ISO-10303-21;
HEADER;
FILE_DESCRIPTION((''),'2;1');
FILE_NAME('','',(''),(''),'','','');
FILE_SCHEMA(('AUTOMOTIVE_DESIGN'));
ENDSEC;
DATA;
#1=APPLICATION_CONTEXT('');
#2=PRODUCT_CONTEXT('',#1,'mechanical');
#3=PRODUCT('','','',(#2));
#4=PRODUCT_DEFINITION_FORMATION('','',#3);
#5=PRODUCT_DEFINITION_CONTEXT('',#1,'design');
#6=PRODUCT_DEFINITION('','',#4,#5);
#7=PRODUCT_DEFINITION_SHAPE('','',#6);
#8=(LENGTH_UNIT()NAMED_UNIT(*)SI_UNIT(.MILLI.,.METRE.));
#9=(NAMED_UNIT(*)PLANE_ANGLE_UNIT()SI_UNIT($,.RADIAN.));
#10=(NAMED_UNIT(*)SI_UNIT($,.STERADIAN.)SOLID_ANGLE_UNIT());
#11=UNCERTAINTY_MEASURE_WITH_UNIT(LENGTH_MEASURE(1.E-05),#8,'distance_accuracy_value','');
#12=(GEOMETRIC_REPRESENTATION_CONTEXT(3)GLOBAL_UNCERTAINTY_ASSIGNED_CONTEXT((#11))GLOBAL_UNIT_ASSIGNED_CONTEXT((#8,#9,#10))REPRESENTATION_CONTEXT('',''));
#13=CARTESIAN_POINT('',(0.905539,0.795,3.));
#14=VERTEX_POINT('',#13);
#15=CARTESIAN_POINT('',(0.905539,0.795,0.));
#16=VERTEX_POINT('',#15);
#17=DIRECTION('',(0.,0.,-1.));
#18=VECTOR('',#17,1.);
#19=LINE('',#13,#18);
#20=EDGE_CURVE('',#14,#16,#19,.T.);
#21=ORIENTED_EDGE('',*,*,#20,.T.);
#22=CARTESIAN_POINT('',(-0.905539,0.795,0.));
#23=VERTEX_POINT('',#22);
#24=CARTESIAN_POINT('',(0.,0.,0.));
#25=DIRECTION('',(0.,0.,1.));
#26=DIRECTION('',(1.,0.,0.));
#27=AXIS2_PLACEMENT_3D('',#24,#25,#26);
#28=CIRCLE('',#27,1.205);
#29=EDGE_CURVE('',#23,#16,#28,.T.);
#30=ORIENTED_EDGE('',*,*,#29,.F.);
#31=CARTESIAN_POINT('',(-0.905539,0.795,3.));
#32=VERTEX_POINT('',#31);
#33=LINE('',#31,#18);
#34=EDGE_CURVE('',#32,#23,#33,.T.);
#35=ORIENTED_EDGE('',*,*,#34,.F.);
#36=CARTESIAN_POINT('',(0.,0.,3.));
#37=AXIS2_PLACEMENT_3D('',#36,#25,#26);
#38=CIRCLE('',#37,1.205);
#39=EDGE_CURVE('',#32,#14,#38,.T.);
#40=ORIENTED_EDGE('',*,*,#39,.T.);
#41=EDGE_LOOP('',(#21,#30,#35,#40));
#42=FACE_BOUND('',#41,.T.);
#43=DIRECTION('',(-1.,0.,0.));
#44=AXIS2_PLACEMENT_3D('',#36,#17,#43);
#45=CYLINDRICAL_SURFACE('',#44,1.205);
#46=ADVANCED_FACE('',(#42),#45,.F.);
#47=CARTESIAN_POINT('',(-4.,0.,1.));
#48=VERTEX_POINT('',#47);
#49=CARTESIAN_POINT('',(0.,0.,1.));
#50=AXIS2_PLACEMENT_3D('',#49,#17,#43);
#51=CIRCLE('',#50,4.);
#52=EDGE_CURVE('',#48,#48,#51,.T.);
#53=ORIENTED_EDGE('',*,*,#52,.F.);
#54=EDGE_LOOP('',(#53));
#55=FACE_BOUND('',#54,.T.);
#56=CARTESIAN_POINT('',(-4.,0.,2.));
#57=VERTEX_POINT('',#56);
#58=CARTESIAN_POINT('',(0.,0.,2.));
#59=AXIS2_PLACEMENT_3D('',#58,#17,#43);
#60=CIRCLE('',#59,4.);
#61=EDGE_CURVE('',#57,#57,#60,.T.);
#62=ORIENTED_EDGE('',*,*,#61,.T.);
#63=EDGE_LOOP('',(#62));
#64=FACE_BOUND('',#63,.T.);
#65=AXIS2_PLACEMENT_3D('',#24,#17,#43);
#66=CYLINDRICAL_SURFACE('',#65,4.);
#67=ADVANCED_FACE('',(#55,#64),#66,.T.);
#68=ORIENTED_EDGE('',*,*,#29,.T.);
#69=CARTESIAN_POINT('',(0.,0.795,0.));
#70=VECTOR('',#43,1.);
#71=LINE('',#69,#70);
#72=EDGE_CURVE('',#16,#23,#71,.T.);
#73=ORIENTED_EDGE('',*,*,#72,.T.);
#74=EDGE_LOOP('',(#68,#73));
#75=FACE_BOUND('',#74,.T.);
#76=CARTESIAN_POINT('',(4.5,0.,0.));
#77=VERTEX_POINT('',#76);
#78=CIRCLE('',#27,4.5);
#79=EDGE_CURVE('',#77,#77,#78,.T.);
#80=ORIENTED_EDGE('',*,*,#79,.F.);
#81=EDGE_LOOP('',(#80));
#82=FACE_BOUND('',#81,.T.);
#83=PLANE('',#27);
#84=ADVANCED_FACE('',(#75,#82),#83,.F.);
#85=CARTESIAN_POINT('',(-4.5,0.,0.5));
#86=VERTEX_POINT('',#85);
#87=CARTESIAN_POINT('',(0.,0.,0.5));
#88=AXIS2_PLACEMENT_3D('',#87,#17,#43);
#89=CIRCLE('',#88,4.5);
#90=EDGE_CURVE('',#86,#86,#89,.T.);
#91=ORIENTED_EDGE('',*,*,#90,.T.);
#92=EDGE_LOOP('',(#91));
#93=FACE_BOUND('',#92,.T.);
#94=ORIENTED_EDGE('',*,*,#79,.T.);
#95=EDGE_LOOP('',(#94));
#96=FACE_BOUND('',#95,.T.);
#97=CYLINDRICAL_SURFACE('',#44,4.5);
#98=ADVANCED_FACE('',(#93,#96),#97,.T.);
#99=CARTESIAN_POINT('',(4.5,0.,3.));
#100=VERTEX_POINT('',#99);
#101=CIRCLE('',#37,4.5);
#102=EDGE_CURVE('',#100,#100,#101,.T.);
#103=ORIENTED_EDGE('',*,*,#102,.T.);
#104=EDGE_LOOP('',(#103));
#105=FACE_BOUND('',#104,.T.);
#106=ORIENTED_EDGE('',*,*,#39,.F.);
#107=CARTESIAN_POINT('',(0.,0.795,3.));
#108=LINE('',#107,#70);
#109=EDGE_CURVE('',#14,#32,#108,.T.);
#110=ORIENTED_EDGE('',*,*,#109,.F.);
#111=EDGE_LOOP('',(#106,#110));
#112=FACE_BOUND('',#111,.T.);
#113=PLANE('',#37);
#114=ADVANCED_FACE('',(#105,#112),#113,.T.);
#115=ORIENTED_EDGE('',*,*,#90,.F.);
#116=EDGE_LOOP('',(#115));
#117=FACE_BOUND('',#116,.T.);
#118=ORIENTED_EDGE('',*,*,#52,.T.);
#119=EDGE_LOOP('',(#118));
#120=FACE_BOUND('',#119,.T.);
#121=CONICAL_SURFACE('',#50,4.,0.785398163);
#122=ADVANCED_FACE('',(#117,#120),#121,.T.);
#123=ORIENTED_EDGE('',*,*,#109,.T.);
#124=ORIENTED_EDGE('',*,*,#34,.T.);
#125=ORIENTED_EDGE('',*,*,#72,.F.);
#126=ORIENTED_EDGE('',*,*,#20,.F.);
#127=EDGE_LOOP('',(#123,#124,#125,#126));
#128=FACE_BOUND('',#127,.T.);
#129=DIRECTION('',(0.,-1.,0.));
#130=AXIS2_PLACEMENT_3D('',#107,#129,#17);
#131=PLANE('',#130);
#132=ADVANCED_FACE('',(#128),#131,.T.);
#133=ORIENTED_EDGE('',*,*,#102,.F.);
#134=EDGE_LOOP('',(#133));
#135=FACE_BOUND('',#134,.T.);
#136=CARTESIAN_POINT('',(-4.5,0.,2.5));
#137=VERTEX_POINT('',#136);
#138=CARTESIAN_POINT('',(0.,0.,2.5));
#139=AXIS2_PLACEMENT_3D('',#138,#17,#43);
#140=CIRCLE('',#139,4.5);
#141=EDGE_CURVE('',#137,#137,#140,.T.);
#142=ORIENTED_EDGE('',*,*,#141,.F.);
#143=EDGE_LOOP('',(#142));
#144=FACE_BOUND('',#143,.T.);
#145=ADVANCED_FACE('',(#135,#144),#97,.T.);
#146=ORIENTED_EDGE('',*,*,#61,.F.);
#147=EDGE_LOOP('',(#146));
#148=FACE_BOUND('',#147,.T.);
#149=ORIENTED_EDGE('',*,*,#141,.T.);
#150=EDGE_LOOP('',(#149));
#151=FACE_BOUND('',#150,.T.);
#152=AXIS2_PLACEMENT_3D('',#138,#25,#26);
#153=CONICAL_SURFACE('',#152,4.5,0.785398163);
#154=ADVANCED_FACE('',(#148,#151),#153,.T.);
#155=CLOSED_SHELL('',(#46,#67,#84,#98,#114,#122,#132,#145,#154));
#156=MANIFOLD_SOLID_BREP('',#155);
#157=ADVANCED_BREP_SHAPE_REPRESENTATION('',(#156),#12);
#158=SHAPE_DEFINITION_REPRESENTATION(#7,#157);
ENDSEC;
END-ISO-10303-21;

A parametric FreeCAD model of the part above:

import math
import FreeCAD as App
import Part
import Sketcher

doc = App.newDocument("Part")
params = doc.addObject("Spreadsheet::Sheet", "Params")
for row, (alias, value) in enumerate([
    ("sketch1_diameter", "9 mm"),
    ("pad1_length", "3 mm"),
    ("sketch2_height", "2 mm"),
    ("sketch2_height2", "1 mm"),
    ("groove_angle", "360 deg"),
], start=1):
    params.set(f"A{row}", alias)
    params.set(f"B{row}", "=" + value)
    params.setAlias(f"B{row}", alias)

body = doc.addObject("PartDesign::Body", "Body")

# Sketch on XY plane
sketch1 = body.newObject("Sketcher::SketchObject", "Sketch")
sketch1.AttachmentSupport = (doc.getObject("XY_Plane"), [""])
sketch1.MapMode = "FlatFace"
sketch1.addGeometry(Part.Circle(App.Vector(0, 0, 0), App.Vector(0, 0, 1), 4.5), False)
sketch1.addConstraint(Sketcher.Constraint("Coincident", 0, 3, -1, 1))
sketch1.addConstraint(Sketcher.Constraint("Diameter", 0, 9.0))
sketch1.setExpression("Constraints[1]", "Params.sketch1_diameter")
pad1 = body.newObject("PartDesign::Pad", "Pad")
pad1.Profile = sketch1
pad1.setExpression("Length", "Params.pad1_length")

# Sketch on YZ plane
sketch2 = body.newObject("Sketcher::SketchObject", "Sketch001")
sketch2.AttachmentSupport = (doc.getObject("YZ_Plane"), [""])
sketch2.MapMode = "FlatFace"
sketch2.addGeometry(Part.LineSegment(App.Vector(4.5, 0.5, 0), App.Vector(4.5, 2.5, 0)), False)
sketch2.addGeometry(Part.LineSegment(App.Vector(4.5, 2.5, 0), App.Vector(4, 2, 0)), False)
sketch2.addGeometry(Part.LineSegment(App.Vector(4, 2, 0), App.Vector(4, 1, 0)), False)
sketch2.addGeometry(Part.LineSegment(App.Vector(4, 1, 0), App.Vector(4.5, 0.5, 0)), False)
sketch2.addConstraint(Sketcher.Constraint("Coincident", 0, 2, 1, 1))
sketch2.addConstraint(Sketcher.Constraint("Coincident", 1, 2, 2, 1))
sketch2.addConstraint(Sketcher.Constraint("Coincident", 2, 2, 3, 1))
sketch2.addConstraint(Sketcher.Constraint("Coincident", 3, 2, 0, 1))
sketch2.addConstraint(Sketcher.Constraint("Vertical", 0))
sketch2.addConstraint(Sketcher.Constraint("Vertical", 2))
sketch2.addConstraint(Sketcher.Constraint("Perpendicular", 1, 3))
sketch2.addConstraint(Sketcher.Constraint("Equal", 1, 3))
sketch2.addConstraint(Sketcher.Constraint("DistanceY", 0, 1, 0, 2, 2.0))
sketch2.addConstraint(Sketcher.Constraint("DistanceY", 2, 2, 2, 1, 1.0))
sketch2.addConstraint(Sketcher.Constraint("DistanceX", -1, 1, 1, 2, 4.0))
sketch2.addConstraint(Sketcher.Constraint("DistanceY", -1, 1, 1, 2, 2.0))
sketch2.setExpression("Constraints[8]", "Params.sketch2_height")
sketch2.setExpression("Constraints[9]", "Params.sketch2_height2")
groove = body.newObject("PartDesign::Groove", "Groove")
groove.Profile = sketch2
groove.ReferenceAxis = (sketch2, ["V_Axis"])
groove.setExpression("Angle", "Params.groove_angle")

# Sketch on XY plane
sketch3 = body.newObject("Sketcher::SketchObject", "Sketch002")
sketch3.AttachmentSupport = (doc.getObject("XY_Plane"), [""])
sketch3.MapMode = "FlatFace"
sketch3.addGeometry(Part.ArcOfCircle(Part.Circle(App.Vector(0, 0, 0), App.Vector(0, 0, 1), 1.205), math.radians(0), math.radians(41.280888)), False)
sketch3.addGeometry(Part.LineSegment(App.Vector(0.905539, 0.795, 0), App.Vector(-0.905539, 0.795, 0)), False)
sketch3.addGeometry(Part.ArcOfCircle(Part.Circle(App.Vector(0, 0, 0), App.Vector(0, 0, 1), 1.205), math.radians(138.719112), math.radians(360)), False)
sketch3.addConstraint(Sketcher.Constraint("Coincident", 0, 2, 1, 1))
sketch3.addConstraint(Sketcher.Constraint("Coincident", 1, 2, 2, 1))
sketch3.addConstraint(Sketcher.Constraint("Tangent", 2, 2, 0, 1))
sketch3.addConstraint(Sketcher.Constraint("Horizontal", 1))
sketch3.addConstraint(Sketcher.Constraint("Coincident", 0, 3, -1, 1))
sketch3.addConstraint(Sketcher.Constraint("Equal", 0, 2))
sketch3.addConstraint(Sketcher.Constraint("PointOnObject", 2, 2, -1))
sketch3.addConstraint(Sketcher.Constraint("Radius", 0, 1.205))
sketch3.addConstraint(Sketcher.Constraint("DistanceY", -1, 1, 0, 2, 0.795))
pocket1 = body.newObject("PartDesign::Pocket", "Pocket")
pocket1.Profile = sketch3
pocket1.Type = "ThroughAll"
pocket1.Reversed = True

doc.recompute()
